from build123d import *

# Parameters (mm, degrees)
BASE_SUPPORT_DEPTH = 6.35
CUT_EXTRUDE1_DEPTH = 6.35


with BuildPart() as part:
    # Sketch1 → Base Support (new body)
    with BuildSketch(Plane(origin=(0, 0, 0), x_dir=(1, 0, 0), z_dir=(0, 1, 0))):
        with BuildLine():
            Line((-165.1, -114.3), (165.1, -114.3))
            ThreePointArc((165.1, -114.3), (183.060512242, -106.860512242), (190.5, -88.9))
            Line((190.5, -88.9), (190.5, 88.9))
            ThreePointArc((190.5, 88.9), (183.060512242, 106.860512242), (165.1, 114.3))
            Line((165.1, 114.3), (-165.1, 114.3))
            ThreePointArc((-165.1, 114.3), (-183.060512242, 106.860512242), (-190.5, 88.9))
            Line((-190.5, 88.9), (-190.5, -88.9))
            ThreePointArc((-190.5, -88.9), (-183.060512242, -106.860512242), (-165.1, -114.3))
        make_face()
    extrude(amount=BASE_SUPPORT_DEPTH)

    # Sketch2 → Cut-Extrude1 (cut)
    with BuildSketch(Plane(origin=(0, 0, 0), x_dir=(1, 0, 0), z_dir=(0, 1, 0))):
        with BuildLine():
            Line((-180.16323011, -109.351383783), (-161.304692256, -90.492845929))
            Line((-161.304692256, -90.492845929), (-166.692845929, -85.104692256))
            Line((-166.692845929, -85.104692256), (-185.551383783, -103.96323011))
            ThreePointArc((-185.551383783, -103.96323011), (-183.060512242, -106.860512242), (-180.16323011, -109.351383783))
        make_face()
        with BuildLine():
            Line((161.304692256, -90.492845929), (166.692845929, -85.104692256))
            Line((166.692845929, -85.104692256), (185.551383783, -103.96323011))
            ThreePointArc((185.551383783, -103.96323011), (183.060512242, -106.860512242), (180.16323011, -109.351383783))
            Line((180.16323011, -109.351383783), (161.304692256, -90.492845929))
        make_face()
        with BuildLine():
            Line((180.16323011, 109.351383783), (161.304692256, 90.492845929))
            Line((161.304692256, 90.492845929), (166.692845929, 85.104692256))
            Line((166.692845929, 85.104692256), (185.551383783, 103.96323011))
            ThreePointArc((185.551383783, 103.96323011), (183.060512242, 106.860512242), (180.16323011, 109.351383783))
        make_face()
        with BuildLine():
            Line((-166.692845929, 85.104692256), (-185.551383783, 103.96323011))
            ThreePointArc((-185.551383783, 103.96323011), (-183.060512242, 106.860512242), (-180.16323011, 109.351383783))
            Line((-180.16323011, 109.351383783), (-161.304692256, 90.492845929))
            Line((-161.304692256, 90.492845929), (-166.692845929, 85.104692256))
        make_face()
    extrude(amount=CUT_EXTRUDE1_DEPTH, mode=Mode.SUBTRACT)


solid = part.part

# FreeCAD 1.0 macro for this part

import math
import FreeCAD as App
import Part
import Sketcher

V = App.Vector
Q = App.Units.Quantity

doc = App.newDocument("Part")
body = doc.addObject("PartDesign::Body", "Body")

# Sketch on XZ plane
sketch1 = doc.addObject("Sketcher::SketchObject", "Sketch")
body.addObject(sketch1)
sketch1.AttachmentSupport = (doc.XZ_Plane, [""])
sketch1.MapMode = "FlatFace"
sketch1.addGeometry([
    Part.LineSegment(V(-165, 114, 0), V(165, 114, 0)),  # 0
    Part.ArcOfCircle(Part.Circle(V(165, 89, 0), V(0, 0, 1), 25), math.radians(0), math.radians(90)),  # 1
    Part.LineSegment(V(190, 89, 0), V(190, -89, 0)),  # 2
    Part.ArcOfCircle(Part.Circle(V(165, -89, 0), V(0, 0, 1), 25), math.radians(-90), math.radians(0)),  # 3
    Part.LineSegment(V(165, -114, 0), V(-165, -114, 0)),  # 4
    Part.ArcOfCircle(Part.Circle(V(-165, -89, 0), V(0, 0, 1), 25), math.radians(180), math.radians(270)),  # 5
    Part.LineSegment(V(-190, -89, 0), V(-190, 89, 0)),  # 6
    Part.ArcOfCircle(Part.Circle(V(-165, 89, 0), V(0, 0, 1), 25), math.radians(90), math.radians(180)),  # 7
], False)
sketch1.addConstraint([
    Sketcher.Constraint("Tangent", 0, 2, 1, 2),
    Sketcher.Constraint("Tangent", 1, 1, 2, 1),
    Sketcher.Constraint("Tangent", 2, 2, 3, 2),
    Sketcher.Constraint("Tangent", 3, 1, 4, 1),
    Sketcher.Constraint("Tangent", 4, 2, 5, 2),
    Sketcher.Constraint("Tangent", 5, 1, 6, 1),
    Sketcher.Constraint("Tangent", 6, 2, 7, 2),
    Sketcher.Constraint("Tangent", 7, 1, 0, 1),
    Sketcher.Constraint("Horizontal", 0),
    Sketcher.Constraint("Vertical", 2),
    Sketcher.Constraint("Horizontal", 4),
    Sketcher.Constraint("Vertical", 6),
    Sketcher.Constraint("Equal", 1, 3),
    Sketcher.Constraint("Equal", 3, 5),
    Sketcher.Constraint("Equal", 5, 7),
    Sketcher.Constraint("Symmetric", 1, 3, 5, 3, -1, 1),
    Sketcher.Constraint("Radius", 1, Q("1 in")),
    Sketcher.Constraint("DistanceX", 0, 1, 0, 2, Q("13 in")),
    Sketcher.Constraint("DistanceY", 2, 2, 2, 1, Q("7 in")),
])
pad1 = doc.addObject("PartDesign::Pad", "Pad")
body.addObject(pad1)
pad1.Profile = sketch1
pad1.Length = Q("0.25 in")
pad1.Reversed = True

# Sketch on XZ plane
sketch2 = doc.addObject("Sketcher::SketchObject", "Sketch001")
body.addObject(sketch2)
sketch2.AttachmentSupport = (doc.XZ_Plane, [""])
sketch2.MapMode = "FlatFace"
sketch2.addGeometry([
    Part.LineSegment(V(-180, 109, 0), V(-161, 90, 0)),  # 0
    Part.LineSegment(V(-161, 90, 0), V(-167, 85, 0)),  # 1
    Part.LineSegment(V(-167, 85, 0), V(-186, 104, 0)),  # 2
    Part.ArcOfCircle(Part.Circle(V(-165, 89, 0), V(0, 0, 1), 25), math.radians(126.37), math.radians(143.63)),  # 3
    Part.LineSegment(V(167, 85, 0), V(161, 90, 0)),  # 4
    Part.LineSegment(V(161, 90, 0), V(180, 109, 0)),  # 5
    Part.ArcOfCircle(Part.Circle(V(165, 89, 0), V(0, 0, 1), 25), math.radians(36.37), math.radians(53.63)),  # 6
    Part.LineSegment(V(186, 104, 0), V(167, 85, 0)),  # 7
    Part.LineSegment(V(180, -109, 0), V(161, -90, 0)),  # 8
    Part.LineSegment(V(161, -90, 0), V(167, -85, 0)),  # 9
    Part.LineSegment(V(167, -85, 0), V(186, -104, 0)),  # 10
    Part.ArcOfCircle(Part.Circle(V(165, -89, 0), V(0, 0, 1), 25), math.radians(-53.63), math.radians(-36.37)),  # 11
    Part.LineSegment(V(-186, -104, 0), V(-167, -85, 0)),  # 12
    Part.LineSegment(V(-167, -85, 0), V(-161, -90, 0)),  # 13
    Part.LineSegment(V(-161, -90, 0), V(-180, -109, 0)),  # 14
    Part.ArcOfCircle(Part.Circle(V(-165, -89, 0), V(0, 0, 1), 25), math.radians(-143.63), math.radians(-126.37)),  # 15
], False)
sketch2.addConstraint([
    Sketcher.Constraint("Coincident", 0, 2, 1, 1),
    Sketcher.Constraint("Coincident", 1, 2, 2, 1),
    Sketcher.Constraint("Coincident", 2, 2, 3, 2),
    Sketcher.Constraint("Coincident", 3, 1, 0, 1),
    Sketcher.Constraint("Coincident", 4, 2, 5, 1),
    Sketcher.Constraint("Coincident", 5, 2, 6, 2),
    Sketcher.Constraint("Coincident", 6, 1, 7, 1),
    Sketcher.Constraint("Coincident", 7, 2, 4, 1),
    Sketcher.Constraint("Coincident", 8, 2, 9, 1),
    Sketcher.Constraint("Coincident", 9, 2, 10, 1),
    Sketcher.Constraint("Coincident", 10, 2, 11, 2),
    Sketcher.Constraint("Coincident", 11, 1, 8, 1),
    Sketcher.Constraint("Coincident", 12, 2, 13, 1),
    Sketcher.Constraint("Coincident", 13, 2, 14, 1),
    Sketcher.Constraint("Coincident", 14, 2, 15, 2),
    Sketcher.Constraint("Coincident", 15, 1, 12, 1),
    Sketcher.Constraint("Equal", 3, 6),
    Sketcher.Constraint("Equal", 6, 11),
    Sketcher.Constraint("Equal", 11, 15),
    Sketcher.Constraint("Symmetric", 3, 3, 11, 3, -1, 1),
    Sketcher.Constraint("Symmetric", 6, 3, 15, 3, -1, 1),
    Sketcher.Constraint("Symmetric", 0, 2, 8, 2, -1, 1),
    Sketcher.Constraint("Symmetric", 1, 2, 9, 2, -1, 1),
    Sketcher.Constraint("Symmetric", 7, 2, 12, 2, -1, 1),
    Sketcher.Constraint("Symmetric", 4, 2, 13, 2, -1, 1),
    Sketcher.Constraint("Symmetric", 3, 3, 6, 3, -2),
    Sketcher.Constraint("Symmetric", 0, 2, 4, 2, -2),
    Sketcher.Constraint("Symmetric", 1, 2, 7, 2, -2),
    Sketcher.Constraint("Perpendicular", 0, 1),
    Sketcher.Constraint("Perpendicular", 1, 2),
    Sketcher.Constraint("Parallel", 2, 4),
    Sketcher.Constraint("Perpendicular", 4, 5),
    Sketcher.Constraint("Parallel", 5, 7),
    Sketcher.Constraint("Perpendicular", 7, 8),
    Sketcher.Constraint("Perpendicular", 9, 10),
    Sketcher.Constraint("Perpendicular", 10, 12),
    Sketcher.Constraint("Perpendicular", 13, 14),
    Sketcher.Constraint("Equal", 0, 2),
    Sketcher.Constraint("Radius", 3, Q("1 in")),
    Sketcher.Constraint("DistanceX", 3, 3, 6, 3, Q("13 in")),
    Sketcher.Constraint("DistanceY", 11, 3, 6, 3, Q("7 in")),
    Sketcher.Constraint("Distance", 1, Q("0.3 in")),
    Sketcher.Constraint("Distance", 0, Q("1.05 in")),
])
pocket1 = doc.addObject("PartDesign::Pocket", "Pocket")
body.addObject(pocket1)
pocket1.Profile = sketch2
pocket1.Length = Q("0.25 in")

doc.recompute()
